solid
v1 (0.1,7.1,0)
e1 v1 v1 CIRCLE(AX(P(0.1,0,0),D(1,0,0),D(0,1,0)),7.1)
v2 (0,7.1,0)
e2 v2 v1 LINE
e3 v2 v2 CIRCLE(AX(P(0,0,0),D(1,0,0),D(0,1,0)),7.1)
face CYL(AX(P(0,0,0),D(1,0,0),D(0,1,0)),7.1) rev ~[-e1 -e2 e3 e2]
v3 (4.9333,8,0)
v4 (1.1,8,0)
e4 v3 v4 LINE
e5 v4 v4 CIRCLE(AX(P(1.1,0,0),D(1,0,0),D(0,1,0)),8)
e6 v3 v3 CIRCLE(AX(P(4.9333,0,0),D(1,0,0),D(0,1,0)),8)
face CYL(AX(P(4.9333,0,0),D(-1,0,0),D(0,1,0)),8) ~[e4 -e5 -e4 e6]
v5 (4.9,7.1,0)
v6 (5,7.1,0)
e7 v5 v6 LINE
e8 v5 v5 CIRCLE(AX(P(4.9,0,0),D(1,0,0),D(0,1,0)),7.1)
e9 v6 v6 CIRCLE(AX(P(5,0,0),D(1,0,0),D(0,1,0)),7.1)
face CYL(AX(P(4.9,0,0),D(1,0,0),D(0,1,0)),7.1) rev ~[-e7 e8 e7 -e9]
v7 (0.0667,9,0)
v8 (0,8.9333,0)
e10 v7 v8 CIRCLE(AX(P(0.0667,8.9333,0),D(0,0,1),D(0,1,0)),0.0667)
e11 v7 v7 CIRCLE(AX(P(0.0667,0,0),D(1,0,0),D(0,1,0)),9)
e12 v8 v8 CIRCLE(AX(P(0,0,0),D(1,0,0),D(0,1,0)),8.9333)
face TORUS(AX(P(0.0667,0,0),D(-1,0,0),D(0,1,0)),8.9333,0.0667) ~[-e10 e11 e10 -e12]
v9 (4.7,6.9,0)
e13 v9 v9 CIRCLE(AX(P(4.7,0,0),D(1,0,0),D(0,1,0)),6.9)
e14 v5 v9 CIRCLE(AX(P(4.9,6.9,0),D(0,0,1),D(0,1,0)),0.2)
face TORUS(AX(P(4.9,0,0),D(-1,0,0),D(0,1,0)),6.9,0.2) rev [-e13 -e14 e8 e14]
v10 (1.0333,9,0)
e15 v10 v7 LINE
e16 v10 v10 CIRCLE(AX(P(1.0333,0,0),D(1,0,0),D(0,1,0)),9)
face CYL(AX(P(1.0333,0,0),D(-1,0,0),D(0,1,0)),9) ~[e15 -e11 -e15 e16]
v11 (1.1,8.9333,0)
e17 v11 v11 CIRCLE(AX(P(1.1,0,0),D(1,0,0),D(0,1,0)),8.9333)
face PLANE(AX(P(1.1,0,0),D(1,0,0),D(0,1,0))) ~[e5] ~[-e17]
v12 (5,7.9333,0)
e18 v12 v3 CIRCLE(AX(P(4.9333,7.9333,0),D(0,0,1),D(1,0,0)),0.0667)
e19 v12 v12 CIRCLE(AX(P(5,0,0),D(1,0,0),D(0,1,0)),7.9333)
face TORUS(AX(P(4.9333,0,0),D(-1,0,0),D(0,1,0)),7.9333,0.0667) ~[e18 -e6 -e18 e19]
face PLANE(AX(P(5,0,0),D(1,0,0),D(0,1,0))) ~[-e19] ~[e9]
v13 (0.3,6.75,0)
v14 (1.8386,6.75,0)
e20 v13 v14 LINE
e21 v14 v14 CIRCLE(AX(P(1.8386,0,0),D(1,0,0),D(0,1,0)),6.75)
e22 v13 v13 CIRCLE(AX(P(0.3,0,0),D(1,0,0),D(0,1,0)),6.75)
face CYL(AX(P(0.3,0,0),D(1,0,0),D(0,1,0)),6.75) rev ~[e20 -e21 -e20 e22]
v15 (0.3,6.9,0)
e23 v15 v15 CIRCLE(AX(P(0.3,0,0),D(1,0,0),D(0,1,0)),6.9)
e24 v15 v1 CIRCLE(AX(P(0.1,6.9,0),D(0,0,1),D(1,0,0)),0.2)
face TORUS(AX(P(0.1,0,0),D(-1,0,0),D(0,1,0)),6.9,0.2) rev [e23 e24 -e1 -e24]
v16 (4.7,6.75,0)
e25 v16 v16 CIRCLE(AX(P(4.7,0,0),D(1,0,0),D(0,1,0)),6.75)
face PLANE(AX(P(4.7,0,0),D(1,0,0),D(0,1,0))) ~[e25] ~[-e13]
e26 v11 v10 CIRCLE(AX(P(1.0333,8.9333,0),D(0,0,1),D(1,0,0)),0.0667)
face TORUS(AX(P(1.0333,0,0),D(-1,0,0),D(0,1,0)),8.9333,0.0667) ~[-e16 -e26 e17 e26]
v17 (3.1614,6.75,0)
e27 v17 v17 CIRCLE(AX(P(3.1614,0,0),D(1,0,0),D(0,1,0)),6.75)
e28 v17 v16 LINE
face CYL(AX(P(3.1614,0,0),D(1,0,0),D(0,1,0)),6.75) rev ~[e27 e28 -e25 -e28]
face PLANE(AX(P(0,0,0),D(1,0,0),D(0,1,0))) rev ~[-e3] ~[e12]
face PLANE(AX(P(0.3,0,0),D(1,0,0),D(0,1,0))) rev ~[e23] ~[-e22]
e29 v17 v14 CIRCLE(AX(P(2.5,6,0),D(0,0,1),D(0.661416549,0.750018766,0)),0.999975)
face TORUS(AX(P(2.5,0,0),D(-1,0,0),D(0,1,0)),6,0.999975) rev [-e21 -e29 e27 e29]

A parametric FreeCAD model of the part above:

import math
import FreeCAD as App
import Part
import Sketcher
from FreeCAD import Vector
Q = App.Units.Quantity

doc = App.newDocument("Part")
params = doc.addObject("Spreadsheet::Sheet", "Params")
for row, (alias, value) in enumerate([
    ("sketch1_radius", "1 mm"),
    ("sketch1_radius2", "0.2 mm"),
    ("sketch1_width", "0.1 mm"),
    ("sketch1_height", "0.15 mm"),
    ("revolution_angle", "360 deg"),
], start=1):
    params.set(f"A{row}", alias)
    params.set(f"B{row}", "=" + value)
    params.setAlias(f"B{row}", alias)

body = doc.addObject("PartDesign::Body", "Body")

# Sketch on XY plane
sketch1 = body.newObject("Sketcher::SketchObject", "Sketch")
sketch1.AttachmentSupport = (doc.getObject("XY_Plane"), [""])
sketch1.MapMode = "FlatFace"
sketch1.addGeometry([
    Part.ArcOfCircle(Part.Circle(Vector(0.07, 8.93, 0), Vector(0, 0, 1), 0.07), math.radians(90), math.radians(180)),  # 0
    Part.LineSegment(Vector(0, 8.93, 0), Vector(0, 7.1, 0)),  # 1
    Part.LineSegment(Vector(0, 7.1, 0), Vector(0.1, 7.1, 0)),  # 2
    Part.ArcOfCircle(Part.Circle(Vector(0.1, 6.9, 0), Vector(0, 0, 1), 0.2), math.radians(0), math.radians(90)),  # 3
    Part.LineSegment(Vector(0.3, 6.9, 0), Vector(0.3, 6.75, 0)),  # 4
    Part.LineSegment(Vector(0.3, 6.75, 0), Vector(1.84, 6.75, 0)),  # 5
    Part.ArcOfCircle(Part.Circle(Vector(2.5, 6, 0), Vector(0, 0, 1), 1), math.radians(49), math.radians(131)),  # 6
    Part.LineSegment(Vector(3.16, 6.75, 0), Vector(4.7, 6.75, 0)),  # 7
    Part.LineSegment(Vector(4.7, 6.75, 0), Vector(4.7, 6.9, 0)),  # 8
    Part.ArcOfCircle(Part.Circle(Vector(4.9, 6.9, 0), Vector(0, 0, 1), 0.2), math.radians(90), math.radians(180)),  # 9
    Part.LineSegment(Vector(4.9, 7.1, 0), Vector(5, 7.1, 0)),  # 10
    Part.LineSegment(Vector(5, 7.1, 0), Vector(5, 7.93, 0)),  # 11
    Part.ArcOfCircle(Part.Circle(Vector(4.93, 7.93, 0), Vector(0, 0, 1), 0.07), math.radians(0), math.radians(90)),  # 12
    Part.LineSegment(Vector(4.93, 8, 0), Vector(1.1, 8, 0)),  # 13
    Part.LineSegment(Vector(1.1, 8, 0), Vector(1.1, 8.93, 0)),  # 14
    Part.ArcOfCircle(Part.Circle(Vector(1.03, 8.93, 0), Vector(0, 0, 1), 0.07), math.radians(0), math.radians(90)),  # 15
    Part.LineSegment(Vector(1.03, 9, 0), Vector(0.07, 9, 0)),  # 16
], False)
sketch1.addConstraint([
    Sketcher.Constraint("Tangent", 0, 2, 1, 1),
    Sketcher.Constraint("Coincident", 1, 2, 2, 1),
    Sketcher.Constraint("Tangent", 2, 2, 3, 2),
    Sketcher.Constraint("Tangent", 3, 1, 4, 1),
    Sketcher.Constraint("Coincident", 4, 2, 5, 1),
    Sketcher.Constraint("Coincident", 5, 2, 6, 2),
    Sketcher.Constraint("Coincident", 6, 1, 7, 1),
    Sketcher.Constraint("Coincident", 7, 2, 8, 1),
    Sketcher.Constraint("Tangent", 8, 2, 9, 2),
    Sketcher.Constraint("Tangent", 9, 1, 10, 1),
    Sketcher.Constraint("Coincident", 10, 2, 11, 1),
    Sketcher.Constraint("Tangent", 11, 2, 12, 1),
    Sketcher.Constraint("Tangent", 12, 2, 13, 1),
    Sketcher.Constraint("Coincident", 13, 2, 14, 1),
    Sketcher.Constraint("Tangent", 14, 2, 15, 1),
    Sketcher.Constraint("Tangent", 15, 2, 16, 1),
    Sketcher.Constraint("Tangent", 16, 2, 0, 1),
    Sketcher.Constraint("Vertical", 1),
    Sketcher.Constraint("Horizontal", 2),
    Sketcher.Constraint("Vertical", 4),
    Sketcher.Constraint("Horizontal", 5),
    Sketcher.Constraint("Horizontal", 7),
    Sketcher.Constraint("Vertical", 8),
    Sketcher.Constraint("Horizontal", 10),
    Sketcher.Constraint("Vertical", 11),
    Sketcher.Constraint("Horizontal", 13),
    Sketcher.Constraint("Vertical", 14),
    Sketcher.Constraint("Horizontal", 16),
    Sketcher.Constraint("Equal", 3, 9),
    Sketcher.Constraint("Equal", 0, 12),
    Sketcher.Constraint("Equal", 12, 15),
    Sketcher.Constraint("PointOnObject", 0, 2, -2),
    Sketcher.Constraint("Horizontal", 3, 3, 9, 3),
    Sketcher.Constraint("Horizontal", 5, 2, 6, 1),
    Sketcher.Constraint("Equal", 5, 7),
    Sketcher.Constraint("Equal", 2, 10),
    Sketcher.Constraint("Radius", 6, Q("1 mm")),
    Sketcher.Constraint("Radius", 3, Q("0.2 mm")),
    Sketcher.Constraint("DistanceX", 2, 1, 2, 2, Q("0.1 mm")),
    Sketcher.Constraint("DistanceY", -1, 1, 6, 3, Q("6 mm")),
    Sketcher.Constraint("DistanceX", -1, 1, 10, 2, Q("5 mm")),
    Sketcher.Constraint("DistanceY", -1, 1, 12, 2, Q("8 mm")),
    Sketcher.Constraint("DistanceY", -1, 1, 15, 2, Q("9 mm")),
    Sketcher.Constraint("DistanceX", 2, 2, 13, 2, Q("1 mm")),
    Sketcher.Constraint("DistanceY", 4, 2, 4, 1, Q("0.15 mm")),
    Sketcher.Constraint("DistanceY", -1, 1, 3, 3, Q("6.9 mm")),
    Sketcher.Constraint("Radius", 0, Q("0.0667 mm")),
])
sketch1.setExpression("Constraints[36]", "Params.sketch1_radius")
sketch1.setExpression("Constraints[37]", "Params.sketch1_radius2")
sketch1.setExpression("Constraints[38]", "Params.sketch1_width")
sketch1.setExpression("Constraints[44]", "Params.sketch1_height")
revolution = body.newObject("PartDesign::Revolution", "Revolution")
revolution.Profile = sketch1
revolution.ReferenceAxis = (sketch1, ["H_Axis"])
revolution.setExpression("Angle", "Params.revolution_angle")

doc.recompute()
